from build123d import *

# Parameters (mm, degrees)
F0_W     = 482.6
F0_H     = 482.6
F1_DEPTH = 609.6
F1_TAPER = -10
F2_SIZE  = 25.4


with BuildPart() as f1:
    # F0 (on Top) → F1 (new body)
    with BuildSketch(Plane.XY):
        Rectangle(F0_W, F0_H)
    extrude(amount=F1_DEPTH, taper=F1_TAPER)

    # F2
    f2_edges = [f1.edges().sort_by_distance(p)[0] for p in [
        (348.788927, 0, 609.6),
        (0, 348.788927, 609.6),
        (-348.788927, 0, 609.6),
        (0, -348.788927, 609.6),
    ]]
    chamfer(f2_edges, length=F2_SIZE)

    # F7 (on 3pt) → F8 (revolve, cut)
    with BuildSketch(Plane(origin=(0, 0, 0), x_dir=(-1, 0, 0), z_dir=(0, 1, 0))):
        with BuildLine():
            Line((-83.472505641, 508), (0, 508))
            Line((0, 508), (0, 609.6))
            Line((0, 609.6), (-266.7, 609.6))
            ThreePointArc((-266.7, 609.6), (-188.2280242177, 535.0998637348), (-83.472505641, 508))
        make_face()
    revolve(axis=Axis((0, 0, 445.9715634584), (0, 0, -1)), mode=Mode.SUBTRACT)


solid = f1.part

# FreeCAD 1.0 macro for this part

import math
import FreeCAD as App
import Part
import Sketcher
from FreeCAD import Vector
Q = App.Units.Quantity


def edges_at(feature, points):
    """Names of the edges that pass closest to the given points."""
    edges = feature.Shape.Edges
    near = lambda p: min(range(len(edges)), key=lambda i: edges[i].distToShape(Part.Vertex(*p))[0])
    return sorted({f"Edge{near(p) + 1}" for p in points})


def add_polygon(sketch, points):
    """Adds a closed chain of lines whose ends are joined by coincident constraints."""
    first, n = sketch.GeometryCount, len(points)
    for a, b in zip(points, points[1:] + points[:1]):
        sketch.addGeometry(Part.LineSegment(App.Vector(*a, 0), App.Vector(*b, 0)), False)
    for i in range(n):
        sketch.addConstraint(Sketcher.Constraint("Coincident", first + i, 2, first + (i + 1) % n, 1))

doc = App.newDocument("Part")
body = doc.addObject("PartDesign::Body", "Body")

# Sketch on XY plane
sketch1 = body.newObject("Sketcher::SketchObject", "Sketch")
sketch1.AttachmentSupport = (doc.getObject("XY_Plane"), [""])
sketch1.MapMode = "FlatFace"
add_polygon(sketch1, [(-241.3, 241.3), (-241.3, -241.3), (241.3, -241.3), (241.3, 241.3)])  # lines 0-3
sketch1.addConstraint([
    Sketcher.Constraint("Vertical", 0),
    Sketcher.Constraint("Horizontal", 1),
    Sketcher.Constraint("Vertical", 2),
    Sketcher.Constraint("Horizontal", 3),
    Sketcher.Constraint("Symmetric", 0, 2, 2, 2, -1, 1),
    Sketcher.Constraint("Equal", 3, 0),
    Sketcher.Constraint("DistanceX", 1, 1, 1, 2, Q("19 in")),
])
pad1 = body.newObject("PartDesign::Pad", "Pad")
pad1.Profile = sketch1
pad1.Length = Q("24 in")
pad1.TaperAngle = 10
doc.recompute()

chamfer = body.newObject("PartDesign::Chamfer", "Chamfer")
chamfer.Base = (pad1, edges_at(pad1, [
    (348.789, 0, 609.6),
    (0, 348.789, 609.6),
    (-348.789, 0, 609.6),
    (0, -348.789, 609.6),
]))
chamfer.Size = Q("1 in")

# Sketch on XZ plane
sketch2 = body.newObject("Sketcher::SketchObject", "Sketch001")
sketch2.AttachmentSupport = (doc.getObject("XZ_Plane"), [""])
sketch2.MapMode = "FlatFace"
sketch2.addGeometry([
    Part.LineSegment(Vector(83.472506, 508, 0), Vector(0, 508, 0)),
    Part.LineSegment(Vector(0, 508, 0), Vector(0, 609.6, 0)),
    Part.LineSegment(Vector(0, 609.6, 0), Vector(266.7, 609.6, 0)),
    Part.ArcOfCircle(Part.Circle(Vector(83.472506, 724.018084, 0), Vector(0, 0, 1), 216.018084), math.radians(-90), math.radians(-31.983094)),
], False)
sketch2.addConstraint([
    Sketcher.Constraint("Coincident", 0, 2, 1, 1),
    Sketcher.Constraint("Coincident", 1, 2, 2, 1),
    Sketcher.Constraint("Coincident", 2, 2, 3, 2),
    Sketcher.Constraint("Tangent", 3, 1, 0, 1),
    Sketcher.Constraint("Horizontal", 0),
    Sketcher.Constraint("Vertical", 1),
    Sketcher.Constraint("Horizontal", 2),
    Sketcher.Constraint("PointOnObject", 0, 2, -2),
    Sketcher.Constraint("DistanceY", 1, 1, 1, 2, Q("4 in")),
    Sketcher.Constraint("DistanceX", 2, 1, 2, 2, Q("10.5 in")),
    Sketcher.Constraint("DistanceY", -1, 1, 0, 2, Q("20 in")),
    Sketcher.Constraint("Radius", 3, 216.018084),
])
groove = body.newObject("PartDesign::Groove", "Groove")
groove.Profile = sketch2
groove.ReferenceAxis = (sketch2, ["V_Axis"])
groove.Angle = 360

doc.recompute()
